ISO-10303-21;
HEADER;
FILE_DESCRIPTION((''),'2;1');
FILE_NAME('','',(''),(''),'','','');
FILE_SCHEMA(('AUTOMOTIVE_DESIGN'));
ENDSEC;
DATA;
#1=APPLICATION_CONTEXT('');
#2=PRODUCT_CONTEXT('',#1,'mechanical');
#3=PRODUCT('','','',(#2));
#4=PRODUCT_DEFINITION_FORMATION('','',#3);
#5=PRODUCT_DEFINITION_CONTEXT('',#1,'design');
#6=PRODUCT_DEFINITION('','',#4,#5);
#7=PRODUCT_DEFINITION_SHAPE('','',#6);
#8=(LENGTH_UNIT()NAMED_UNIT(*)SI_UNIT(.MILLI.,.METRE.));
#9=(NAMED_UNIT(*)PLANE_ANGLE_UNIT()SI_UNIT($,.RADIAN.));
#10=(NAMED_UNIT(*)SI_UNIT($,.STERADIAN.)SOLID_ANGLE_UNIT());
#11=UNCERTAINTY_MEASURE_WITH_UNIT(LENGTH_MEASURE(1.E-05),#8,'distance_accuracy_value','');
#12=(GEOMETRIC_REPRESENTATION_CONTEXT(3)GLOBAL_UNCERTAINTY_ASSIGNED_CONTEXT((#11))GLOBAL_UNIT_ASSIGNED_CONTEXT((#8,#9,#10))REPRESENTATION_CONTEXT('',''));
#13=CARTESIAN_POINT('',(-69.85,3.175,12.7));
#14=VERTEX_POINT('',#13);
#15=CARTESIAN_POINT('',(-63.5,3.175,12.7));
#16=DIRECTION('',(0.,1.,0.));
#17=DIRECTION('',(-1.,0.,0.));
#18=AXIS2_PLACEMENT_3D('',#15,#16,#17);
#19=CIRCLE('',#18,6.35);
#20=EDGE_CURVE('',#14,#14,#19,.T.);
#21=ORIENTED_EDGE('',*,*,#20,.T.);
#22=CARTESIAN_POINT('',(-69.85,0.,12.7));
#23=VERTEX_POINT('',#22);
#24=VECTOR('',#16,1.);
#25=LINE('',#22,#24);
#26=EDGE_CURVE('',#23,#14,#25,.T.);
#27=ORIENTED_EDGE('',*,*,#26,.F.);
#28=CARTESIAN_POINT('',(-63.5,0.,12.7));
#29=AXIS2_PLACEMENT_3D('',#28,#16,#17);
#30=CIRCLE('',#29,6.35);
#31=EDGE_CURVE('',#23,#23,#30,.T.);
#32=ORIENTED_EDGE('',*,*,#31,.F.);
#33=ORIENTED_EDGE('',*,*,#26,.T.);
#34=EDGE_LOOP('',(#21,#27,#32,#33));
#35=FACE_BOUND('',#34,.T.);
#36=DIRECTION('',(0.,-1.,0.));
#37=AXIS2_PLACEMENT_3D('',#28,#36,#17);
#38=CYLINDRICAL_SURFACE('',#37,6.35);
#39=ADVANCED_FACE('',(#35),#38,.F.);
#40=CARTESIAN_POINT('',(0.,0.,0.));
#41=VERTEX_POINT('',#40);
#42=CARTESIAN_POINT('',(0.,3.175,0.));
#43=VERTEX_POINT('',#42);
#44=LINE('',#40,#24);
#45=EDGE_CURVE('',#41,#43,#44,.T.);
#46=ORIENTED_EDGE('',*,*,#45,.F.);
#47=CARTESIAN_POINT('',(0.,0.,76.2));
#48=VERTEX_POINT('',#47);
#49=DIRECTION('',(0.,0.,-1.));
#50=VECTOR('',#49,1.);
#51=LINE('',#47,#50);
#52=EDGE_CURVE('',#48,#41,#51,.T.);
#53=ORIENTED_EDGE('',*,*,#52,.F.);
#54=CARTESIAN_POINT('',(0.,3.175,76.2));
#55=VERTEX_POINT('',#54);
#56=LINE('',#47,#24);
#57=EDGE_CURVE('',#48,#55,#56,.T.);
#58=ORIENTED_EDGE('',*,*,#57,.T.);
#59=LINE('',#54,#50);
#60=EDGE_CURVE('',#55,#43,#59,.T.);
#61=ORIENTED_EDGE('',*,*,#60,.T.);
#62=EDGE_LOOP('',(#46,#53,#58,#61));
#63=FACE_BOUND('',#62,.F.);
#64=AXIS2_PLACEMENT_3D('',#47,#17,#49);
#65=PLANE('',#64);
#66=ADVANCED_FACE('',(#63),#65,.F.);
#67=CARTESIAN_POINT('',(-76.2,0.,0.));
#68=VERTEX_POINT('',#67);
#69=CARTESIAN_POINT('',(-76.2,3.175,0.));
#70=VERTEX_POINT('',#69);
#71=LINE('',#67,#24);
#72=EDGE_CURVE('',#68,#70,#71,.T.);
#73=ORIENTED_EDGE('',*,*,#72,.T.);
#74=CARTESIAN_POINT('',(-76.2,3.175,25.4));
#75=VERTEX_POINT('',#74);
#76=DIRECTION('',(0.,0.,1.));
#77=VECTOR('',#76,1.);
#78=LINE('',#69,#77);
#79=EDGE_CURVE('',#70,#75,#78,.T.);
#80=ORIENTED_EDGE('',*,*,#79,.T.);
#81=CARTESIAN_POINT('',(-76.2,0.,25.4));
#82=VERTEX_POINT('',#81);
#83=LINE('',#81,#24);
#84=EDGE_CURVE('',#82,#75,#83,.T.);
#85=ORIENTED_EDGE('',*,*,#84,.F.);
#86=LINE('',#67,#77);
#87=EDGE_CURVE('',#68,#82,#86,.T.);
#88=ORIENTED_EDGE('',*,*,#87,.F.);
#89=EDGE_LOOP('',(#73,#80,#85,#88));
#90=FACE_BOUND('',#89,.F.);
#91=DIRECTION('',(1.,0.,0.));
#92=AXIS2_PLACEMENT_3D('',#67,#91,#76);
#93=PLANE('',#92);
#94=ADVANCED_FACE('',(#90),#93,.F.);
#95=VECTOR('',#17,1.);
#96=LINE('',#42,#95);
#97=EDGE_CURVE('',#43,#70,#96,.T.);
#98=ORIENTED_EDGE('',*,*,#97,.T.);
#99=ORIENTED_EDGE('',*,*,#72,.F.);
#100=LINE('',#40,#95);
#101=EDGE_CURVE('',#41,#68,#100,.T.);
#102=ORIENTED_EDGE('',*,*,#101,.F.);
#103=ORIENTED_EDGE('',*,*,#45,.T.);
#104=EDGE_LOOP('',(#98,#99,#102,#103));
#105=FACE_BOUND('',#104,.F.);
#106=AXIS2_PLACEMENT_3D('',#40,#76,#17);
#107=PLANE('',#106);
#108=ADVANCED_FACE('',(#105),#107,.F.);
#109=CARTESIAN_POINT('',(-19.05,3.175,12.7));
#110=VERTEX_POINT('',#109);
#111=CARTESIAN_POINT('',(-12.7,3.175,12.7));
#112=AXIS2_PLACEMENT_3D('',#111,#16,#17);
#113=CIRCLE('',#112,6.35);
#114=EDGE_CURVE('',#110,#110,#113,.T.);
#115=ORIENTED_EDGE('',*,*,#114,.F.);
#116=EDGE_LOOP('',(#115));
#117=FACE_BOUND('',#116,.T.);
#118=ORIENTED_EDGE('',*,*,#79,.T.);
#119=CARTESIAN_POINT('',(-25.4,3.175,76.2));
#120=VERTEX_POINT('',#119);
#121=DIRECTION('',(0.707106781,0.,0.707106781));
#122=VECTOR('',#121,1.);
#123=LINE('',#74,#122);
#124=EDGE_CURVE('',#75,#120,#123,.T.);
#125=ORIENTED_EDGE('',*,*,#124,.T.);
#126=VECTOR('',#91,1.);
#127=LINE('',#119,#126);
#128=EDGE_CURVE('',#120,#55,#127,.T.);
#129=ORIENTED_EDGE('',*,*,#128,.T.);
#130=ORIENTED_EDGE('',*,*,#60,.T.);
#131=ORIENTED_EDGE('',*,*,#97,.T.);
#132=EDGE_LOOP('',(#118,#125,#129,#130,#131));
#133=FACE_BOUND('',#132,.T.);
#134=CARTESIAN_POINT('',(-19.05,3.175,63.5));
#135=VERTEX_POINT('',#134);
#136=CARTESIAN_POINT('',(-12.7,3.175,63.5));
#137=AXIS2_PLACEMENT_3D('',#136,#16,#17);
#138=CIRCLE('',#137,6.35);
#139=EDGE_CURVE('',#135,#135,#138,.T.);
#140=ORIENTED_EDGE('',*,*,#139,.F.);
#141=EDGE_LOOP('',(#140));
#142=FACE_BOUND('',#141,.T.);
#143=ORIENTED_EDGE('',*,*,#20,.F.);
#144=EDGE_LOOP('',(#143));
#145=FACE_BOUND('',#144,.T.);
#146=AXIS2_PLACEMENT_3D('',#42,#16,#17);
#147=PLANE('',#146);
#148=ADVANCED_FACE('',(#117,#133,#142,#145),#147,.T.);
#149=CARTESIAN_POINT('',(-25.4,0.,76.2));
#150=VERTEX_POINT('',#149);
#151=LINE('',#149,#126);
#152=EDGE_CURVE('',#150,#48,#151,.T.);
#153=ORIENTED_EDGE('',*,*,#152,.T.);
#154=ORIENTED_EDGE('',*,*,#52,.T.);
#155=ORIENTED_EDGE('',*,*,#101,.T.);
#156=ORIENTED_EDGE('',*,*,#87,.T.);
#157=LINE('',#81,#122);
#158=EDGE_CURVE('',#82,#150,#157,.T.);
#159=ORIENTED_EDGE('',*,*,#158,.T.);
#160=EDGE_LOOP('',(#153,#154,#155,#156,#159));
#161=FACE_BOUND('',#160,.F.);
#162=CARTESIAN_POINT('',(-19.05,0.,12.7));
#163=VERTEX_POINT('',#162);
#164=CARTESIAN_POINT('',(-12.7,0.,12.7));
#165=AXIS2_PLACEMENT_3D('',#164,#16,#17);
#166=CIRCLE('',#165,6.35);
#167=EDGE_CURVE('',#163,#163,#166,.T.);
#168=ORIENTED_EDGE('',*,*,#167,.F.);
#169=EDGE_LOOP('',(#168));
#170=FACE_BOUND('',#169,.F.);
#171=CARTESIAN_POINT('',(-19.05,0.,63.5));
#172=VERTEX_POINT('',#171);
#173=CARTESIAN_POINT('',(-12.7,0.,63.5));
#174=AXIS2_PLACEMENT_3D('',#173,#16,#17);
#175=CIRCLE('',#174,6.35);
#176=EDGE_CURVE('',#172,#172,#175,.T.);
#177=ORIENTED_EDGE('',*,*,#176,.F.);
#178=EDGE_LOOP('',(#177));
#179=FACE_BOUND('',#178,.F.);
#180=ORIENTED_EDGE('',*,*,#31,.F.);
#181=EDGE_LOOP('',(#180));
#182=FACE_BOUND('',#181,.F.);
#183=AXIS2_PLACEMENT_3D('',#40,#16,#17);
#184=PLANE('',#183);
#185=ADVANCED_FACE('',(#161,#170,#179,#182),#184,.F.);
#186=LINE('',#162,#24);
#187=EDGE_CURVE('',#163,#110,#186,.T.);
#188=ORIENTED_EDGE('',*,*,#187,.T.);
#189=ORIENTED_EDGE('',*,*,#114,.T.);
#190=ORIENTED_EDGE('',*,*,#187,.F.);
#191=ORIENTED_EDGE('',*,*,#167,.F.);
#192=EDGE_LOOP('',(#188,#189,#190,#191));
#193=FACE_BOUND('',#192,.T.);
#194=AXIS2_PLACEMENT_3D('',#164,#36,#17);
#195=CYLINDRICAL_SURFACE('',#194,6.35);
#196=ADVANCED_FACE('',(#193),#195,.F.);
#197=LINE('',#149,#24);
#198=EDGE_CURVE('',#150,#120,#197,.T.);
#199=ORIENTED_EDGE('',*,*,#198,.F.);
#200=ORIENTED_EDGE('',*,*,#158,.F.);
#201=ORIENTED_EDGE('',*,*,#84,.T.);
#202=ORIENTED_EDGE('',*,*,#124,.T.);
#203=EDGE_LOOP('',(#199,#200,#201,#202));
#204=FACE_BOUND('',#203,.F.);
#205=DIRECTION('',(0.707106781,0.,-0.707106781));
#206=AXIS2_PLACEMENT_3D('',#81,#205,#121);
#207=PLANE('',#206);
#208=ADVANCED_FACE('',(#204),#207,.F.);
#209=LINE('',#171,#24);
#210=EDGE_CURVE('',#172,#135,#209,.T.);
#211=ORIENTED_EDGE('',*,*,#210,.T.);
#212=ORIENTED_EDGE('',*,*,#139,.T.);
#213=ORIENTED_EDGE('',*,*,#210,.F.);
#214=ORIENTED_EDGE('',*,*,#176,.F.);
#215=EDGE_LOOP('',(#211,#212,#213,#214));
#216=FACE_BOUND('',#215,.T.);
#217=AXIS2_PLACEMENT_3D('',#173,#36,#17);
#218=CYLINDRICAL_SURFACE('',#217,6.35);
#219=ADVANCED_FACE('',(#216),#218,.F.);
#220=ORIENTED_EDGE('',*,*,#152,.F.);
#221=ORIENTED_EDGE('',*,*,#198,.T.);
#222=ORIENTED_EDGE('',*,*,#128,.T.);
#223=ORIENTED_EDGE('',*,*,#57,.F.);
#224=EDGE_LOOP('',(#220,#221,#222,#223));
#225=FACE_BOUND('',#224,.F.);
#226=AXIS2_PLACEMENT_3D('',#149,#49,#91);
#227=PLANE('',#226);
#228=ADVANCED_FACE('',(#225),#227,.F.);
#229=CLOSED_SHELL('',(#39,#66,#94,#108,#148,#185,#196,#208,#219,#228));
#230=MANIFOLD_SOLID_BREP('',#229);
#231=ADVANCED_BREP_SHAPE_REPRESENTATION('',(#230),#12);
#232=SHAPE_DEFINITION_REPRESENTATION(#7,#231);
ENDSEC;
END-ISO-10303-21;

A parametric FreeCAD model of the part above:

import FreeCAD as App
import Part
import Sketcher

V = App.Vector
Q = App.Units.Quantity

doc = App.newDocument("Part")
body = doc.addObject("PartDesign::Body", "Body")

sketch1 = body.newObject("Sketcher::SketchObject", "Sketch")
sketch1.AttachmentSupport = (doc.getObject("XZ_Plane"), [""])
sketch1.MapMode = "FlatFace"
sketch1.addGeometry(Part.LineSegment(V(0, 76, 0), V(0, 0, 0)), False)
sketch1.addGeometry(Part.LineSegment(V(0, 0, 0), V(-76, 0, 0)), False)
sketch1.addGeometry(Part.LineSegment(V(-76, 0, 0), V(-76, 25, 0)), False)
sketch1.addGeometry(Part.LineSegment(V(-76, 25, 0), V(-25, 76, 0)), False)
sketch1.addGeometry(Part.LineSegment(V(-25, 76, 0), V(0, 76, 0)), False)
sketch1.addGeometry(Part.Circle(V(-13, 13, 0), V(0, 0, 1), 6), False)
sketch1.addGeometry(Part.Circle(V(-64, 13, 0), V(0, 0, 1), 6), False)
sketch1.addGeometry(Part.Circle(V(-13, 64, 0), V(0, 0, 1), 6), False)
sketch1.addConstraint(Sketcher.Constraint("Coincident", 0, 2, 1, 1))
sketch1.addConstraint(Sketcher.Constraint("Coincident", 1, 2, 2, 1))
sketch1.addConstraint(Sketcher.Constraint("Coincident", 2, 2, 3, 1))
sketch1.addConstraint(Sketcher.Constraint("Coincident", 3, 2, 4, 1))
sketch1.addConstraint(Sketcher.Constraint("Coincident", 4, 2, 0, 1))
sketch1.addConstraint(Sketcher.Constraint("Vertical", 0))
sketch1.addConstraint(Sketcher.Constraint("Horizontal", 1))
sketch1.addConstraint(Sketcher.Constraint("Vertical", 2))
sketch1.addConstraint(Sketcher.Constraint("Horizontal", 4))
sketch1.addConstraint(Sketcher.Constraint("Coincident", 0, 2, -1, 1))
sketch1.addConstraint(Sketcher.Constraint("Equal", 5, 6))
sketch1.addConstraint(Sketcher.Constraint("Equal", 6, 7))
sketch1.addConstraint(Sketcher.Constraint("Horizontal", 5, 3, 6, 3))
sketch1.addConstraint(Sketcher.Constraint("Vertical", 5, 3, 7, 3))
sketch1.addConstraint(Sketcher.Constraint("Equal", 1, 0))
sketch1.addConstraint(Sketcher.Constraint("Equal", 4, 2))
sketch1.addConstraint(Sketcher.Constraint("Diameter", 5, Q("0.5 in")))
sketch1.addConstraint(Sketcher.Constraint("DistanceX", 1, 2, 1, 1, Q("3 in")))
sketch1.addConstraint(Sketcher.Constraint("DistanceX", 6, 3, 5, 3, Q("2 in")))
sketch1.addConstraint(Sketcher.Constraint("DistanceY", 5, 3, 7, 3, Q("2 in")))
sketch1.addConstraint(Sketcher.Constraint("DistanceX", 2, 2, 3, 2, Q("2 in")))
sketch1.addConstraint(Sketcher.Constraint("DistanceX", 5, 3, -1, 1, Q("0.5 in")))
sketch1.addConstraint(Sketcher.Constraint("DistanceY", -1, 1, 5, 3, Q("0.5 in")))
pad1 = body.newObject("PartDesign::Pad", "Pad")
pad1.Profile = sketch1
pad1.Length = Q("0.125 in")
pad1.Reversed = True

doc.recompute()
